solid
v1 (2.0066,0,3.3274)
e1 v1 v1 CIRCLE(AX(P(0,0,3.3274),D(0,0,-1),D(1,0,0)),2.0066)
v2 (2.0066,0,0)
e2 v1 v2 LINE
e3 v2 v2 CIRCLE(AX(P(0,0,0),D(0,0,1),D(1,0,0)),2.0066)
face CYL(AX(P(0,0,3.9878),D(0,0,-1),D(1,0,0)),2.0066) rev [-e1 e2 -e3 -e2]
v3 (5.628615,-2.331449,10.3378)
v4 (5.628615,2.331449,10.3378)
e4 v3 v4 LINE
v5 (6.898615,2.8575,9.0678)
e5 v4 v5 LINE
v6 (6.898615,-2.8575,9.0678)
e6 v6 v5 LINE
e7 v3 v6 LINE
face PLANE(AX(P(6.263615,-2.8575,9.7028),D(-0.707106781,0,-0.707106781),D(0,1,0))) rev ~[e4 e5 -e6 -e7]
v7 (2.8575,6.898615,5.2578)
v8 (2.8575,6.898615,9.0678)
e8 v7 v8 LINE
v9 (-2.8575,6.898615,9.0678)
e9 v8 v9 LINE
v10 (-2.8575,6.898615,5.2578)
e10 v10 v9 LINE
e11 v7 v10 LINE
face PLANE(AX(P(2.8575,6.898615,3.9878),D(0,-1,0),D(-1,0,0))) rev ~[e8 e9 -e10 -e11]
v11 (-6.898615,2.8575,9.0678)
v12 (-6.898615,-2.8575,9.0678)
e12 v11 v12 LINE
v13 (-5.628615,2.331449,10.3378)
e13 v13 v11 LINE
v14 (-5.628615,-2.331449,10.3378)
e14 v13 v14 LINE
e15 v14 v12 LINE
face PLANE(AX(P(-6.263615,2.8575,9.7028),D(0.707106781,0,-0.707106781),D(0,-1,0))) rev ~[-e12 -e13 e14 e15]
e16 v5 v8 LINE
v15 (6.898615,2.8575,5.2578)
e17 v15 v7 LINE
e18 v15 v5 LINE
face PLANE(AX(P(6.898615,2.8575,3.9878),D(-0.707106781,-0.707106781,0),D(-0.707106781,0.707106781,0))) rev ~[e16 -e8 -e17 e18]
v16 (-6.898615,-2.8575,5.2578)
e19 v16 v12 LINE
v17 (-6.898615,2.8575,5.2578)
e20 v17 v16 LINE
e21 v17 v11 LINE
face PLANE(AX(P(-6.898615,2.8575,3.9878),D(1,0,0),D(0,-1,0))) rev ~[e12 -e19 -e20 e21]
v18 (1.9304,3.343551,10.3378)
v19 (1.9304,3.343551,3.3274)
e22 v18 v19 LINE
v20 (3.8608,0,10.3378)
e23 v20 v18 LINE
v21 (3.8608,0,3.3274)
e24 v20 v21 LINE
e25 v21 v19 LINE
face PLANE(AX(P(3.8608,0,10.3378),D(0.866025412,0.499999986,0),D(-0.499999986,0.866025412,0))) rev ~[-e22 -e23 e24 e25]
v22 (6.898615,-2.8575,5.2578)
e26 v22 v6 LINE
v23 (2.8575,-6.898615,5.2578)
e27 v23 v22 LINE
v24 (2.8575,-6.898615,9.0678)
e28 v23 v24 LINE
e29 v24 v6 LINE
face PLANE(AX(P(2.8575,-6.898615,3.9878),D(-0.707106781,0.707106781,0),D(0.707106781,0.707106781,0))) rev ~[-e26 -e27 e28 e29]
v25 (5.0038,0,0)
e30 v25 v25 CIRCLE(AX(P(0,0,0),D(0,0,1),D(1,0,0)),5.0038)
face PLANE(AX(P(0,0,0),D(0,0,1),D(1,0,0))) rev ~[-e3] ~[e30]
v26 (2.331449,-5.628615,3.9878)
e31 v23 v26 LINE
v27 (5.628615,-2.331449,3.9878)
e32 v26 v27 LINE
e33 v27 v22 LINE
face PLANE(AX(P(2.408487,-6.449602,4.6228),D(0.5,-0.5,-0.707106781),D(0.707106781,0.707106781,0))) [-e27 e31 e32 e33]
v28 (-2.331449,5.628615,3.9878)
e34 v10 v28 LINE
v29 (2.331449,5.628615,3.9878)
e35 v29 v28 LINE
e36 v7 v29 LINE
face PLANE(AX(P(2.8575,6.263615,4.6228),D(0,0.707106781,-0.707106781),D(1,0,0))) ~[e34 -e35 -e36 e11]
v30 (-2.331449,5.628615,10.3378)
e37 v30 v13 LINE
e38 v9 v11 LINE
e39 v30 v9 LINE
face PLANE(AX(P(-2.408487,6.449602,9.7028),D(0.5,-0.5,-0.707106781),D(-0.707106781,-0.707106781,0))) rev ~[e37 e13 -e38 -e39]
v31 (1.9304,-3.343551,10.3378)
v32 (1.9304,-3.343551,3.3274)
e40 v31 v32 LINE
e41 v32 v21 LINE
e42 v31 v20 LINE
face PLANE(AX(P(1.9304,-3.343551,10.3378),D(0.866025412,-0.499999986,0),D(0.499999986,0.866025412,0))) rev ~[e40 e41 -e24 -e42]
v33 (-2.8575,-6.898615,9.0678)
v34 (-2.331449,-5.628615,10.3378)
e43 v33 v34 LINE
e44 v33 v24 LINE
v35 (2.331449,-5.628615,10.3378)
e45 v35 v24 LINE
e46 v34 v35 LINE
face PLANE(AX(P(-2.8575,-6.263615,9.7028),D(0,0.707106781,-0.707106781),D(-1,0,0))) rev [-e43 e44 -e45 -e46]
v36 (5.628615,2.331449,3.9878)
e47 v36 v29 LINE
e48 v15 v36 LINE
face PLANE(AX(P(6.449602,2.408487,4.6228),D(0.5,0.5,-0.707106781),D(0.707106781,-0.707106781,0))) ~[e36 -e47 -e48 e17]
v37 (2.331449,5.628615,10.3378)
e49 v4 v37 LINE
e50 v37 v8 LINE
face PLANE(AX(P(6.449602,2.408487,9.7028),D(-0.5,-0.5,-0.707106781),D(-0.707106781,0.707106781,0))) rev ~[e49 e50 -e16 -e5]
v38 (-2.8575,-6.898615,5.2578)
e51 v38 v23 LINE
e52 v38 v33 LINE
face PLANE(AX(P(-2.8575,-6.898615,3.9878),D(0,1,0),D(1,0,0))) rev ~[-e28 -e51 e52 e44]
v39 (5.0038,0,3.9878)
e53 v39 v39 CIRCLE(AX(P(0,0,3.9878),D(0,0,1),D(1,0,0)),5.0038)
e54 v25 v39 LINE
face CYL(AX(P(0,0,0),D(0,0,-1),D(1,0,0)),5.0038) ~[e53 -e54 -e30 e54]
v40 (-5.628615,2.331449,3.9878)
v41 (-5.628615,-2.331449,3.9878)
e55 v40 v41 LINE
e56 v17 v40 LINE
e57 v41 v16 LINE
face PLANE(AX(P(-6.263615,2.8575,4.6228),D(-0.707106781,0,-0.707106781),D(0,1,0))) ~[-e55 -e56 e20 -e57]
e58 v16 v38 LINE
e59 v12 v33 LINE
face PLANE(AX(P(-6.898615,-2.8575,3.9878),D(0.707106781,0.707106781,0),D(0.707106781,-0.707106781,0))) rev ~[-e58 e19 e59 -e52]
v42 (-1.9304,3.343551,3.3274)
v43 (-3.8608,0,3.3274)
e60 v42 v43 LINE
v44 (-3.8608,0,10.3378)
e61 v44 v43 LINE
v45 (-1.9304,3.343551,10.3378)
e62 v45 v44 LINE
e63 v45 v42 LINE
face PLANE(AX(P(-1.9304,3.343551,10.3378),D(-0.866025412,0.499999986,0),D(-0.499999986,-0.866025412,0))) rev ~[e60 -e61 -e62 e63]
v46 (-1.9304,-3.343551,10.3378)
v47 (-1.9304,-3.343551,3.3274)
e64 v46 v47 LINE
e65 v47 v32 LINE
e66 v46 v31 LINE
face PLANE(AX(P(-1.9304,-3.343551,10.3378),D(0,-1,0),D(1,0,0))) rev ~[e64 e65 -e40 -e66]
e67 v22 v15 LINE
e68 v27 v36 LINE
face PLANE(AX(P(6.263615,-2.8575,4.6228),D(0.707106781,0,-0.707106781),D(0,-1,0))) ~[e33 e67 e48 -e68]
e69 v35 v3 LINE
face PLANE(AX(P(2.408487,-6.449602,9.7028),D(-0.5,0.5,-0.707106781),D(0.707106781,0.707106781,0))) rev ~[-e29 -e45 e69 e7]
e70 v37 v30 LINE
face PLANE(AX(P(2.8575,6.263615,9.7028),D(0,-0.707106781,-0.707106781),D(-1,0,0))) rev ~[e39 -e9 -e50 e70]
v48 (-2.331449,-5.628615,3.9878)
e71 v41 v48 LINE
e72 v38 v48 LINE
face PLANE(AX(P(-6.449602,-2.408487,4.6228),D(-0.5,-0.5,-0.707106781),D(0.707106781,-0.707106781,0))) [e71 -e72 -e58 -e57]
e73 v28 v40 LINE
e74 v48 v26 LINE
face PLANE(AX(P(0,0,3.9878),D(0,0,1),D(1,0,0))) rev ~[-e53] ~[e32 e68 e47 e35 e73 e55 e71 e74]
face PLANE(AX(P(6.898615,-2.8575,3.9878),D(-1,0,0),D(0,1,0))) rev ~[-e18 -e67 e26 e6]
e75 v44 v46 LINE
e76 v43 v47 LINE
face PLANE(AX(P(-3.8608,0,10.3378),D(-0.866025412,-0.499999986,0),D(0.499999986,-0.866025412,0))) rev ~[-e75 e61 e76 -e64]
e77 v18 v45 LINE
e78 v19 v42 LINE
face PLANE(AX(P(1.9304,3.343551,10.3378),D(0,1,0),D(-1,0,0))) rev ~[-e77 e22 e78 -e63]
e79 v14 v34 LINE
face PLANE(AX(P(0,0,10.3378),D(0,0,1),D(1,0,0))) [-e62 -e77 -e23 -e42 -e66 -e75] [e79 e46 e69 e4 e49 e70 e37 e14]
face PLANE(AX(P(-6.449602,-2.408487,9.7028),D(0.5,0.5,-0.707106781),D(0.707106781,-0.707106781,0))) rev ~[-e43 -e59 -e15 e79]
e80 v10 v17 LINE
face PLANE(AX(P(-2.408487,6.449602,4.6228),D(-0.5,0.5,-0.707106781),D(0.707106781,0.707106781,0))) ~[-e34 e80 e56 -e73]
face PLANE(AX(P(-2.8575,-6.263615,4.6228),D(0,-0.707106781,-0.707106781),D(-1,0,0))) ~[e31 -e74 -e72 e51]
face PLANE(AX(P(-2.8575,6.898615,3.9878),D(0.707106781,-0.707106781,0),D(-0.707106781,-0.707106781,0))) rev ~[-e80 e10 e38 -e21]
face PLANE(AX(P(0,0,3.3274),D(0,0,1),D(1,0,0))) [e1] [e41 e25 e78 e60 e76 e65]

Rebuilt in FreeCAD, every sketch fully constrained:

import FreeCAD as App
import Part
import Sketcher

V = App.Vector
Q = App.Units.Quantity


def edges_at(feature, points):
    """Names of the edges that pass closest to the given points."""
    edges = feature.Shape.Edges
    near = lambda p: min(range(len(edges)), key=lambda i: edges[i].distToShape(Part.Vertex(*p))[0])
    return sorted({f"Edge{near(p) + 1}" for p in points})

doc = App.newDocument("Part")
body = doc.addObject("PartDesign::Body", "Body")

# Sketch on XY plane
sketch1 = body.newObject("Sketcher::SketchObject", "Sketch")
sketch1.AttachmentSupport = (doc.getObject("XY_Plane"), [""])
sketch1.MapMode = "FlatFace"
sketch1.addGeometry(Part.Circle(V(0, 0, 0), V(0, 0, 1), 5.0038), False)
sketch1.addGeometry(Part.Circle(V(0, 0, 0), V(0, 0, 1), 2.0066), False)
sketch1.addConstraint(Sketcher.Constraint("Coincident", 0, 3, -1, 1))
sketch1.addConstraint(Sketcher.Constraint("Coincident", 1, 3, -1, 1))
sketch1.addConstraint(Sketcher.Constraint("Diameter", 0, Q("0.394 in")))
sketch1.addConstraint(Sketcher.Constraint("Diameter", 1, Q("0.158 in")))
pad1 = body.newObject("PartDesign::Pad", "Pad")
pad1.Profile = sketch1
pad1.Length = Q("0.157 in")

# Sketch on XY plane
sketch2 = body.newObject("Sketcher::SketchObject", "Sketch001")
sketch2.AttachmentSupport = (doc.getObject("XY_Plane"), [""])
sketch2.MapMode = "FlatFace"
sketch2.AttachmentOffset = App.Placement(V(0, 0, 0.157 * 25.4), App.Rotation())
sketch2.addGeometry(Part.LineSegment(V(-2.8575, -6.898615, 0), V(2.8575, -6.898615, 0)), False)
sketch2.addGeometry(Part.LineSegment(V(2.8575, -6.898615, 0), V(6.898615, -2.8575, 0)), False)
sketch2.addGeometry(Part.LineSegment(V(6.898615, -2.8575, 0), V(6.898615, 2.8575, 0)), False)
sketch2.addGeometry(Part.LineSegment(V(6.898615, 2.8575, 0), V(2.8575, 6.898615, 0)), False)
sketch2.addGeometry(Part.LineSegment(V(2.8575, 6.898615, 0), V(-2.8575, 6.898615, 0)), False)
sketch2.addGeometry(Part.LineSegment(V(-2.8575, 6.898615, 0), V(-6.898615, 2.8575, 0)), False)
sketch2.addGeometry(Part.LineSegment(V(-6.898615, 2.8575, 0), V(-6.898615, -2.8575, 0)), False)
sketch2.addGeometry(Part.LineSegment(V(-6.898615, -2.8575, 0), V(-2.8575, -6.898615, 0)), False)
sketch2.addGeometry(Part.Circle(V(0, 0, 0), V(0, 0, 1), 2.0066), False)
sketch2.addConstraint(Sketcher.Constraint("Coincident", 0, 2, 1, 1))
sketch2.addConstraint(Sketcher.Constraint("Coincident", 1, 2, 2, 1))
sketch2.addConstraint(Sketcher.Constraint("Coincident", 2, 2, 3, 1))
sketch2.addConstraint(Sketcher.Constraint("Coincident", 3, 2, 4, 1))
sketch2.addConstraint(Sketcher.Constraint("Coincident", 4, 2, 5, 1))
sketch2.addConstraint(Sketcher.Constraint("Coincident", 5, 2, 6, 1))
sketch2.addConstraint(Sketcher.Constraint("Coincident", 6, 2, 7, 1))
sketch2.addConstraint(Sketcher.Constraint("Coincident", 7, 2, 0, 1))
sketch2.addConstraint(Sketcher.Constraint("Horizontal", 0))
sketch2.addConstraint(Sketcher.Constraint("Vertical", 2))
sketch2.addConstraint(Sketcher.Constraint("Horizontal", 4))
sketch2.addConstraint(Sketcher.Constraint("Vertical", 6))
sketch2.addConstraint(Sketcher.Constraint("Coincident", 8, 3, -1, 1))
sketch2.addConstraint(Sketcher.Constraint("Symmetric", 0, 2, 4, 2, -1, 1))
sketch2.addConstraint(Sketcher.Constraint("Symmetric", 1, 2, 5, 2, -1, 1))
sketch2.addConstraint(Sketcher.Constraint("Perpendicular", 1, 3))
sketch2.addConstraint(Sketcher.Constraint("Perpendicular", 5, 7))
sketch2.addConstraint(Sketcher.Constraint("Horizontal", 2, 2, 5, 2))
sketch2.addConstraint(Sketcher.Constraint("Horizontal", 1, 2, 6, 2))
sketch2.addConstraint(Sketcher.Constraint("Vertical", 0, 2, 3, 2))
sketch2.addConstraint(Sketcher.Constraint("Equal", 4, 2))
sketch2.addConstraint(Sketcher.Constraint("Diameter", 8, Q("0.158 in")))
sketch2.addConstraint(Sketcher.Constraint("DistanceX", 0, 1, 0, 2, Q("0.225 in")))
sketch2.addConstraint(Sketcher.Constraint("Distance", 1, Q("0.225 in")))
pad2 = body.newObject("PartDesign::Pad", "Pad001")
pad2.Profile = sketch2
pad2.Length = Q("0.25 in")
doc.recompute()

chamfer = body.newObject("PartDesign::Chamfer", "Chamfer")
chamfer.Base = (pad2, edges_at(pad2, [
    (-6.899, 0, 10.338),
    (-4.878, 4.878, 10.338),
    (0, 6.899, 10.338),
    (4.878, 4.878, 10.338),
    (6.899, 0, 10.338),
    (4.878, -4.878, 10.338),
    (0, -6.899, 10.338),
    (-4.878, -4.878, 10.338),
    (0, -6.899, 3.988),
    (-4.878, -4.878, 3.988),
    (4.878, -4.878, 3.988),
    (-6.899, 0, 3.988),
    (6.899, 0, 3.988),
    (4.878, 4.878, 3.988),
    (0, 6.899, 3.988),
    (-4.878, 4.878, 3.988),
]))
chamfer.Size = Q("0.05 in")

# Sketch on XY plane
sketch3 = body.newObject("Sketcher::SketchObject", "Sketch002")
sketch3.AttachmentSupport = (doc.getObject("XY_Plane"), [""])
sketch3.MapMode = "FlatFace"
sketch3.AttachmentOffset = App.Placement(V(0, 0, 0.407 * 25.4), App.Rotation())
sketch3.addGeometry(Part.LineSegment(V(1.9304, -3.343551, 0), V(3.8608, 0, 0)), False)
sketch3.addGeometry(Part.LineSegment(V(3.8608, 0, 0), V(1.9304, 3.343551, 0)), False)
sketch3.addGeometry(Part.LineSegment(V(1.9304, 3.343551, 0), V(-1.9304, 3.343551, 0)), False)
sketch3.addGeometry(Part.LineSegment(V(-1.9304, 3.343551, 0), V(-3.8608, 0, 0)), False)
sketch3.addGeometry(Part.LineSegment(V(-3.8608, 0, 0), V(-1.9304, -3.343551, 0)), False)
sketch3.addGeometry(Part.LineSegment(V(-1.9304, -3.343551, 0), V(1.9304, -3.343551, 0)), False)
sketch3.addConstraint(Sketcher.Constraint("Coincident", 0, 2, 1, 1))
sketch3.addConstraint(Sketcher.Constraint("Coincident", 1, 2, 2, 1))
sketch3.addConstraint(Sketcher.Constraint("Coincident", 2, 2, 3, 1))
sketch3.addConstraint(Sketcher.Constraint("Coincident", 3, 2, 4, 1))
sketch3.addConstraint(Sketcher.Constraint("Coincident", 4, 2, 5, 1))
sketch3.addConstraint(Sketcher.Constraint("Coincident", 5, 2, 0, 1))
sketch3.addConstraint(Sketcher.Constraint("Horizontal", 2))
sketch3.addConstraint(Sketcher.Constraint("Horizontal", 5))
sketch3.addConstraint(Sketcher.Constraint("Symmetric", 0, 2, 3, 2, -1, 1))
sketch3.addConstraint(Sketcher.Constraint("Symmetric", 1, 2, 4, 2, -1, 1))
sketch3.addConstraint(Sketcher.Constraint("PointOnObject", 0, 2, -1))
sketch3.addConstraint(Sketcher.Constraint("Parallel", 0, 3))
sketch3.addConstraint(Sketcher.Constraint("Vertical", 2, 2, 4, 2))
sketch3.addConstraint(Sketcher.Constraint("Angle", 0, Q("60.000001 deg")))
sketch3.addConstraint(Sketcher.Constraint("DistanceX", 2, 2, 2, 1, Q("0.152 in")))
sketch3.addConstraint(Sketcher.Constraint("Distance", 0, Q("0.152 in")))
pocket1 = body.newObject("PartDesign::Pocket", "Pocket")
pocket1.Profile = sketch3
pocket1.Length = Q("0.276 in")

doc.recompute()
